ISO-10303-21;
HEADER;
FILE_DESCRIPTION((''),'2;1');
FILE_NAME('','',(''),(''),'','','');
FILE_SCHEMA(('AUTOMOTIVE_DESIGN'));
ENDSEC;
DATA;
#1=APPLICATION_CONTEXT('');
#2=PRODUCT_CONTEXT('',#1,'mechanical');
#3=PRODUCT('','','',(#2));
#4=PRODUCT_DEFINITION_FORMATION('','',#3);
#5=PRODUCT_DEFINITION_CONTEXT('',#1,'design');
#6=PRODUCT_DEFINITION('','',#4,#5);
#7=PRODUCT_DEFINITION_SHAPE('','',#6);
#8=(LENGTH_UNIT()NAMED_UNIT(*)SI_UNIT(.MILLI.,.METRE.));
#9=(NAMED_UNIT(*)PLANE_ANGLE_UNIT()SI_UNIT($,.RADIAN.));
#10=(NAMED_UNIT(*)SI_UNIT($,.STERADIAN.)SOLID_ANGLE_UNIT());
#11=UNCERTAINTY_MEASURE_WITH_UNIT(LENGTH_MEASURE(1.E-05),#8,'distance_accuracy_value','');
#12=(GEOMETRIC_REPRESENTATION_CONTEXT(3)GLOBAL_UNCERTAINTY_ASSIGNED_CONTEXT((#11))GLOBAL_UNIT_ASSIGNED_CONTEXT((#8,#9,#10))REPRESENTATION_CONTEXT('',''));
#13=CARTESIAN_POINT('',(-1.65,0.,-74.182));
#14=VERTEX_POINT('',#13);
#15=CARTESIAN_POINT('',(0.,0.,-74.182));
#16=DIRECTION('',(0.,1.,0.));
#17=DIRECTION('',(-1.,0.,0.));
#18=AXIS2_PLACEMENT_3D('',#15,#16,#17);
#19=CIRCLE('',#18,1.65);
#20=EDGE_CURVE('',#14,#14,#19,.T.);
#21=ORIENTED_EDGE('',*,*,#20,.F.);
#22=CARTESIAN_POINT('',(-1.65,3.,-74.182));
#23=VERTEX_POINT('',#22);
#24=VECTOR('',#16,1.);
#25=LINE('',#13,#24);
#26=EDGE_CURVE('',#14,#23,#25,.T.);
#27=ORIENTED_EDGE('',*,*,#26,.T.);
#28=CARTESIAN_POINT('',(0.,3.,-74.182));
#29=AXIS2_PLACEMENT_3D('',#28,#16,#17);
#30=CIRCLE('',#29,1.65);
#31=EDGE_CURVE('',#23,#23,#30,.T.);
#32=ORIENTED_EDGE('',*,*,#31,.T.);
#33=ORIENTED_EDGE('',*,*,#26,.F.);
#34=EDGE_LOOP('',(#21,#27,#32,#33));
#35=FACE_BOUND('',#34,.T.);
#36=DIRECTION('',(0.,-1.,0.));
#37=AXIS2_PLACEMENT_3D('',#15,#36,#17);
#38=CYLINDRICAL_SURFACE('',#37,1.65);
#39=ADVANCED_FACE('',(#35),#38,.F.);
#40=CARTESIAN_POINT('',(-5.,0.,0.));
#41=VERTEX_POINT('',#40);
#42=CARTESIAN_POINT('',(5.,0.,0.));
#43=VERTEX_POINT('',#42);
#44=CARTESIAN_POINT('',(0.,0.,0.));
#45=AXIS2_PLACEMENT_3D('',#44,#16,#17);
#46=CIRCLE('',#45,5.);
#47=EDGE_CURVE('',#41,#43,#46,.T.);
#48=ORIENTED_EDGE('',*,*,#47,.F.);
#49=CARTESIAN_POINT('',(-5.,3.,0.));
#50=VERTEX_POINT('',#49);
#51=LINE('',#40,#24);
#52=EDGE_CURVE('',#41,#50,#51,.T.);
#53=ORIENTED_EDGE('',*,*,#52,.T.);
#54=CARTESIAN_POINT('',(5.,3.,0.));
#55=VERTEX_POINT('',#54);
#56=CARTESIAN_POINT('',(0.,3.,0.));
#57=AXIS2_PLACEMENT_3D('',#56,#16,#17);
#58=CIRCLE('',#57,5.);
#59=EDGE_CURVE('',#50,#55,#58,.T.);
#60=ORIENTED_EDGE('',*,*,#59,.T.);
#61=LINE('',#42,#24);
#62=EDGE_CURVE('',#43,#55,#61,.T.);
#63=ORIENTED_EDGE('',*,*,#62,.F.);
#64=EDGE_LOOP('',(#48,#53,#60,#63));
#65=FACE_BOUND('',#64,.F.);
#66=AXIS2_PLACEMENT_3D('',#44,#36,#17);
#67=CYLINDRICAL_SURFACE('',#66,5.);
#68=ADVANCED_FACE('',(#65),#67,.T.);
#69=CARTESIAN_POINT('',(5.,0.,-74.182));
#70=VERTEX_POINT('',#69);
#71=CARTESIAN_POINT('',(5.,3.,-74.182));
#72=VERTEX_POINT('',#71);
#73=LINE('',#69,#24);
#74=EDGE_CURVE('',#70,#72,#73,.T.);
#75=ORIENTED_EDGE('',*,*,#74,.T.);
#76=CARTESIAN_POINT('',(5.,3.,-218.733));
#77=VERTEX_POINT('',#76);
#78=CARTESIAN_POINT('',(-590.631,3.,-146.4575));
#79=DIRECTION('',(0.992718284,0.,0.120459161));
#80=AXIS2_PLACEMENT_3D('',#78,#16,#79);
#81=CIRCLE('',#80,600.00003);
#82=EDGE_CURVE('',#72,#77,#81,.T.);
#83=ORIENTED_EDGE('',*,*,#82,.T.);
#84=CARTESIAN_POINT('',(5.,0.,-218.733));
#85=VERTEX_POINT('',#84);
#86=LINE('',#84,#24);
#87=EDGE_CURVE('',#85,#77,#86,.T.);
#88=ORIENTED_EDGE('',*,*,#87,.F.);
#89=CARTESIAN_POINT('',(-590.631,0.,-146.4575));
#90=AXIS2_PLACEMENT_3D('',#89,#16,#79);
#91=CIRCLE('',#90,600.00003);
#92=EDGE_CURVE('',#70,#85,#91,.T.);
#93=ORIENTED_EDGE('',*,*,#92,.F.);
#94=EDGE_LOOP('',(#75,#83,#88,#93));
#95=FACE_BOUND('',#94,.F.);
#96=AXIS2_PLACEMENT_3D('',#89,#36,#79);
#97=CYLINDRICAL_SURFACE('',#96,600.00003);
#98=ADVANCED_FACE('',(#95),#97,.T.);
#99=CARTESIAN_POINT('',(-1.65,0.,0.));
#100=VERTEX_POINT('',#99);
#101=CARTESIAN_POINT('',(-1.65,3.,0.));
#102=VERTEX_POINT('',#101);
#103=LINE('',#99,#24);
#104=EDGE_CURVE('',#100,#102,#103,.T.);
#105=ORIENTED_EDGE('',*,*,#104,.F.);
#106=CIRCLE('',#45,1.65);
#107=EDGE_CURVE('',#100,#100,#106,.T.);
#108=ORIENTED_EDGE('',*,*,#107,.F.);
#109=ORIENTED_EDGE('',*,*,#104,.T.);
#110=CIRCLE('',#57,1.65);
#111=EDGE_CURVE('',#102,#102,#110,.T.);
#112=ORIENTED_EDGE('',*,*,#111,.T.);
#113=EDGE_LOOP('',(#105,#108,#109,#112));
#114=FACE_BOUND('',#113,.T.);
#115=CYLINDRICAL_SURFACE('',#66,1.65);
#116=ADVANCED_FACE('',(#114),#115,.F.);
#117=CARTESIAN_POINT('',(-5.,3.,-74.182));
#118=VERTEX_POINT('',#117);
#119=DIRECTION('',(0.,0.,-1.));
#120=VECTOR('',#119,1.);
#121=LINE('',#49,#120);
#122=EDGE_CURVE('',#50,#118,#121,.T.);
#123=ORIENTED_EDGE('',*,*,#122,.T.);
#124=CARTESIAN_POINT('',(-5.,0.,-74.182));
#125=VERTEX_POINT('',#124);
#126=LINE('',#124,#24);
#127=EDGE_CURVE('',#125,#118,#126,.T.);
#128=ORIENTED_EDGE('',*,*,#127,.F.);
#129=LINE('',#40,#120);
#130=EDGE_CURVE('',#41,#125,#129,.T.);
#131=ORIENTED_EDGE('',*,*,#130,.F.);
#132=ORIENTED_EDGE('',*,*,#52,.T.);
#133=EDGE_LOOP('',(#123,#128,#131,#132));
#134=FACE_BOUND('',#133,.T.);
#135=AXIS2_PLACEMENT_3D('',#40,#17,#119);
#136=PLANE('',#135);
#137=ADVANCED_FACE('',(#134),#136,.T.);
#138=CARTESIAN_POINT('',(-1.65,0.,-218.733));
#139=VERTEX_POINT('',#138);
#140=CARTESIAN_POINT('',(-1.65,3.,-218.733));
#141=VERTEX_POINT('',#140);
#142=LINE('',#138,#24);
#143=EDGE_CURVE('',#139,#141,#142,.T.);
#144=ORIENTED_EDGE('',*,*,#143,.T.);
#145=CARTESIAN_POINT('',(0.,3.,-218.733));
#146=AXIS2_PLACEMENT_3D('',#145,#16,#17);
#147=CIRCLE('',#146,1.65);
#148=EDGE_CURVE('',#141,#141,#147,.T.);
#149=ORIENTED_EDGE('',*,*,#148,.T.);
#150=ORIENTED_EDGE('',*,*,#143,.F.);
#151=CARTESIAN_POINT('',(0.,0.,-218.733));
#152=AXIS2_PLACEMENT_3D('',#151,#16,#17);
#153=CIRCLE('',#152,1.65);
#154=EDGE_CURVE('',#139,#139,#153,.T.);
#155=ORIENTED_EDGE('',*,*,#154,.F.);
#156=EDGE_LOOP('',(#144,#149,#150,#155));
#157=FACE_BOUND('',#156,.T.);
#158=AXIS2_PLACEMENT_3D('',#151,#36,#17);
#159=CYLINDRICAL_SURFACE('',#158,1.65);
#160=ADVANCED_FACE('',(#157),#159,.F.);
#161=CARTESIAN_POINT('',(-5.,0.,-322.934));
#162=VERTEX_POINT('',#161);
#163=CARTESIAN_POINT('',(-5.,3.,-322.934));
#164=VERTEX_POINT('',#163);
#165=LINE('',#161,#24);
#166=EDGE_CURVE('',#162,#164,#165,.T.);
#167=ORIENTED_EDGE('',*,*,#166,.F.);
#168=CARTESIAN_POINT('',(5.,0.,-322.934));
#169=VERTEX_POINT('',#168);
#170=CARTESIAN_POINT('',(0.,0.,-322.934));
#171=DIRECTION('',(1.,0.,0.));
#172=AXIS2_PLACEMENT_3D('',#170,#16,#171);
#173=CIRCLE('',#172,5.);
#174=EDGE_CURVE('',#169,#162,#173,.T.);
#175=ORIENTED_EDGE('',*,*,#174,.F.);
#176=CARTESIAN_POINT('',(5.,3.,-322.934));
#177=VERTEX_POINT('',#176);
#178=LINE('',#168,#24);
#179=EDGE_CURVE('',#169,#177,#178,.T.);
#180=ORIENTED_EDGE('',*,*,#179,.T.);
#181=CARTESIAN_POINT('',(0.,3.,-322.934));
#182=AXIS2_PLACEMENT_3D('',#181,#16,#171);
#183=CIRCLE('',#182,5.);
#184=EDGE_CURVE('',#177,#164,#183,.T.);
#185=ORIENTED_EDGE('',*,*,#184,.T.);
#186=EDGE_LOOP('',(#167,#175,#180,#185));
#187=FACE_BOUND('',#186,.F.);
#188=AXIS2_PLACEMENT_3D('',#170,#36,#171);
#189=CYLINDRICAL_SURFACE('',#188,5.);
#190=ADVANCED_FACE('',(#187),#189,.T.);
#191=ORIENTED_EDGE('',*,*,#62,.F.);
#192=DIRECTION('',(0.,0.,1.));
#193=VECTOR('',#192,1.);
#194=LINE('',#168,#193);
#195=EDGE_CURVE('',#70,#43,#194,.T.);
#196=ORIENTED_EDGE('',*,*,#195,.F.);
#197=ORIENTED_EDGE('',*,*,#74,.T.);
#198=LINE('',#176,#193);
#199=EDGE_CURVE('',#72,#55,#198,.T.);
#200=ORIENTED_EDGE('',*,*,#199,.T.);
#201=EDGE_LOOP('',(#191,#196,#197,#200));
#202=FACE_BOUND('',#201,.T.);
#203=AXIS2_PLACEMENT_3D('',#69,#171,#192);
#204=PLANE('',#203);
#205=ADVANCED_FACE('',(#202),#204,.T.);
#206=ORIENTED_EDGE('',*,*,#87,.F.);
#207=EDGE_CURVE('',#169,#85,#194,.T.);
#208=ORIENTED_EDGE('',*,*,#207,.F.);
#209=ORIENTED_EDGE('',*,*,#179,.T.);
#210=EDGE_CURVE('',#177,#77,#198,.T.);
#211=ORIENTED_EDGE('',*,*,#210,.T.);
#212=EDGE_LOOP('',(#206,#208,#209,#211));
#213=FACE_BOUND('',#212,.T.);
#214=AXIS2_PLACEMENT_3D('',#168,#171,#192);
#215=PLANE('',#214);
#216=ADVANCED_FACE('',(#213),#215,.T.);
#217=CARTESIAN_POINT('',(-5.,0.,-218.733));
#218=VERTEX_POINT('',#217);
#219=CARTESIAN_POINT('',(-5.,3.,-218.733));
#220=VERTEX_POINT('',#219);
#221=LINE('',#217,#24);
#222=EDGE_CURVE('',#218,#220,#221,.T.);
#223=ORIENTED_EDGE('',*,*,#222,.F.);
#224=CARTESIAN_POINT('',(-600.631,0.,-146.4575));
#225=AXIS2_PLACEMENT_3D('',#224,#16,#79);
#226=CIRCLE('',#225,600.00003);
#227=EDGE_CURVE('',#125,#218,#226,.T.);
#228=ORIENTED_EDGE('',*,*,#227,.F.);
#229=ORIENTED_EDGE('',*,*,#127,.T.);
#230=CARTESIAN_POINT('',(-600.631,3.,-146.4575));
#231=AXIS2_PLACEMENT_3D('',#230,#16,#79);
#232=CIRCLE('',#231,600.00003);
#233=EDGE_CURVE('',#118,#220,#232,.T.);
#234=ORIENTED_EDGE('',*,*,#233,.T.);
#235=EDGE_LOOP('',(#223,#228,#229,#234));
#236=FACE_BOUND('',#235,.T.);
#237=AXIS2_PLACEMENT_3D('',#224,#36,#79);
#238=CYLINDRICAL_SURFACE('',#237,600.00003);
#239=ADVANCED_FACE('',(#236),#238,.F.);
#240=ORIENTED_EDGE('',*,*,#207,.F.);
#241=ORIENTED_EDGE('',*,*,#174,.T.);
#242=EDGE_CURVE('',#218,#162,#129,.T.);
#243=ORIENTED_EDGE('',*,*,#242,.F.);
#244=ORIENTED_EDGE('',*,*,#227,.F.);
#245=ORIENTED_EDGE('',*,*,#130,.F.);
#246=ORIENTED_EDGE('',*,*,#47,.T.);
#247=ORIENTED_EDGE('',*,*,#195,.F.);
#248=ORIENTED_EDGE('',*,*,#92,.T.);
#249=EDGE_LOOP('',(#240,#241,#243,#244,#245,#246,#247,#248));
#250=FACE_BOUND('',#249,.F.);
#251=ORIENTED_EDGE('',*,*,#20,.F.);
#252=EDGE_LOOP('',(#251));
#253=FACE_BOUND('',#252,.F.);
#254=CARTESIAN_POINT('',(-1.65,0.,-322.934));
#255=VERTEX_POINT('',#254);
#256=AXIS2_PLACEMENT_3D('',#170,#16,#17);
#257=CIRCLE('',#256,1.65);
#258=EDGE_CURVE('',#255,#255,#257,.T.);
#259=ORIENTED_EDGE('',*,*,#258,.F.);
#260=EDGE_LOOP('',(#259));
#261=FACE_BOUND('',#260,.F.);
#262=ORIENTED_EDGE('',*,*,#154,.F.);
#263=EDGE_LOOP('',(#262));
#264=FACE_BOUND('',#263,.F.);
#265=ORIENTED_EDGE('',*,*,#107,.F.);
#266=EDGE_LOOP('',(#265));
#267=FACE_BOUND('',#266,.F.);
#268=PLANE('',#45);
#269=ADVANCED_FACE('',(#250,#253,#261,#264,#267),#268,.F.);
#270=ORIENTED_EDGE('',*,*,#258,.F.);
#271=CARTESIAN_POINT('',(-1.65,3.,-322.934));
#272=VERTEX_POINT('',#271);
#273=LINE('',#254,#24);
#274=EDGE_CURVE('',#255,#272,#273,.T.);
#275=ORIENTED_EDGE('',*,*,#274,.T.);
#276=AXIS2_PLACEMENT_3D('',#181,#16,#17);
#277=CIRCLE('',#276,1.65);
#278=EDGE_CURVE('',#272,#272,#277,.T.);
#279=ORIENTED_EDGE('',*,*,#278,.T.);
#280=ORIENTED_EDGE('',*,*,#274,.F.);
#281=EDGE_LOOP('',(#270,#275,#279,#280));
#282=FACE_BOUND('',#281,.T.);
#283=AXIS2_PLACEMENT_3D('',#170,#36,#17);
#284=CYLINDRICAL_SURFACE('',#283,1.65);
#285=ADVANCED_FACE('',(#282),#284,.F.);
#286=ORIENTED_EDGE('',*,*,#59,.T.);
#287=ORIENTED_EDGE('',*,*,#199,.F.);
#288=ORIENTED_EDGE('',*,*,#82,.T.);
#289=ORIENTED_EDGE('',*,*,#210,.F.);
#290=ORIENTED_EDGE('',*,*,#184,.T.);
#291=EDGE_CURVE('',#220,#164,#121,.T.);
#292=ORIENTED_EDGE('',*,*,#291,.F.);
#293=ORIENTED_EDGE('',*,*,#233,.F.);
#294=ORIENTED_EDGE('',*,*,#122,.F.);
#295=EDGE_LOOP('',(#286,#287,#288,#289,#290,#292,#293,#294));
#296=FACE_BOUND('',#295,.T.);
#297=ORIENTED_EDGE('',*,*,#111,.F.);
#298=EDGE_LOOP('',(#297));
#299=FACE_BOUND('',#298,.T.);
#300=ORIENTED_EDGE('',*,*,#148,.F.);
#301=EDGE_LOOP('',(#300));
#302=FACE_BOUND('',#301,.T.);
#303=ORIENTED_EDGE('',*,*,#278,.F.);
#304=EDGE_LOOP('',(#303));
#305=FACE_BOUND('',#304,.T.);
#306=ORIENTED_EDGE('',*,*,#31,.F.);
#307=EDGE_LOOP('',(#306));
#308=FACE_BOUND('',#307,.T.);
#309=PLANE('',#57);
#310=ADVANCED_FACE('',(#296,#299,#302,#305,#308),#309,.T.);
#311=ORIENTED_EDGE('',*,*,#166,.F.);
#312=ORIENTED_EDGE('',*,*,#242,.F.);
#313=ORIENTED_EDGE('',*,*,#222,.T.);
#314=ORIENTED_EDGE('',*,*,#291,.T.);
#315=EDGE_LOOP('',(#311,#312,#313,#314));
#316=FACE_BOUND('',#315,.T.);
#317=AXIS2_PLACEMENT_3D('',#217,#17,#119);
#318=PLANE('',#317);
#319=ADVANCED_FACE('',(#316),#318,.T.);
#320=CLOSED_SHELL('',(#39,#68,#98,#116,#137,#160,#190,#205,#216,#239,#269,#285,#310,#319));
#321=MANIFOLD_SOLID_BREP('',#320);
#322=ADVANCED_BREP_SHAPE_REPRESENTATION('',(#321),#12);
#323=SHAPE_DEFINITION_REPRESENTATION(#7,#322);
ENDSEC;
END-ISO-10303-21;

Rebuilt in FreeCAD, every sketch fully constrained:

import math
import FreeCAD as App
import Part
import Sketcher
from FreeCAD import Vector

doc = App.newDocument("Part")
params = doc.addObject("Spreadsheet::Sheet", "Params")
for row, (alias, value) in enumerate([
    ("sketch1_radius", "5 mm"),
    ("sketch1_radius2", "600 mm"),
    ("sketch1_diameter", "3.3 mm"),
    ("pad1_length", "3 mm"),
], start=1):
    params.set(f"A{row}", alias)
    params.set(f"B{row}", "=" + value)
    params.setAlias(f"B{row}", alias)

body = doc.addObject("PartDesign::Body", "Body")

# Sketch on XZ plane
sketch1 = body.newObject("Sketcher::SketchObject", "Sketch")
sketch1.AttachmentSupport = (doc.getObject("XZ_Plane"), [""])
sketch1.MapMode = "FlatFace"
sketch1.addGeometry(Part.LineSegment(Vector(-5, -74.182, 0), Vector(-5, 0, 0)), False)
sketch1.addGeometry(Part.ArcOfCircle(Part.Circle(Vector(0, 0, 0), Vector(0, 0, 1), 5), math.radians(0), math.radians(180)), False)
sketch1.addGeometry(Part.LineSegment(Vector(5, 0, 0), Vector(5, -74.182, 0)), False)
sketch1.addGeometry(Part.ArcOfCircle(Part.Circle(Vector(-590.631, -146.4575, 0), Vector(0, 0, 1), 600.00003), math.radians(-6.918603), math.radians(6.918603)), False)
sketch1.addGeometry(Part.LineSegment(Vector(5, -218.733, 0), Vector(5, -322.934, 0)), False)
sketch1.addGeometry(Part.ArcOfCircle(Part.Circle(Vector(0, -322.934, 0), Vector(0, 0, 1), 5), math.radians(180), math.radians(360)), False)
sketch1.addGeometry(Part.LineSegment(Vector(-5, -322.934, 0), Vector(-5, -218.733, 0)), False)
sketch1.addGeometry(Part.ArcOfCircle(Part.Circle(Vector(-600.631, -146.4575, 0), Vector(0, 0, 1), 600.00003), math.radians(-6.918603), math.radians(6.918603)), False)
sketch1.addGeometry(Part.Circle(Vector(0, -322.934, 0), Vector(0, 0, 1), 1.65), False)
sketch1.addGeometry(Part.Circle(Vector(0, -218.733, 0), Vector(0, 0, 1), 1.65), False)
sketch1.addGeometry(Part.Circle(Vector(0, -74.182, 0), Vector(0, 0, 1), 1.65), False)
sketch1.addGeometry(Part.Circle(Vector(0, 0, 0), Vector(0, 0, 1), 1.65), False)
sketch1.addConstraint(Sketcher.Constraint("Tangent", 0, 2, 1, 2))
sketch1.addConstraint(Sketcher.Constraint("Tangent", 1, 1, 2, 1))
sketch1.addConstraint(Sketcher.Constraint("Coincident", 2, 2, 3, 2))
sketch1.addConstraint(Sketcher.Constraint("Coincident", 3, 1, 4, 1))
sketch1.addConstraint(Sketcher.Constraint("Tangent", 4, 2, 5, 2))
sketch1.addConstraint(Sketcher.Constraint("Tangent", 5, 1, 6, 1))
sketch1.addConstraint(Sketcher.Constraint("Coincident", 6, 2, 7, 1))
sketch1.addConstraint(Sketcher.Constraint("Coincident", 7, 2, 0, 1))
sketch1.addConstraint(Sketcher.Constraint("Vertical", 0))
sketch1.addConstraint(Sketcher.Constraint("Vertical", 2))
sketch1.addConstraint(Sketcher.Constraint("Vertical", 4))
sketch1.addConstraint(Sketcher.Constraint("Vertical", 6))
sketch1.addConstraint(Sketcher.Constraint("Coincident", 1, 3, -1, 1))
sketch1.addConstraint(Sketcher.Constraint("Coincident", 11, 3, -1, 1))
sketch1.addConstraint(Sketcher.Constraint("Coincident", 8, 3, 5, 3))
sketch1.addConstraint(Sketcher.Constraint("Equal", 1, 5))
sketch1.addConstraint(Sketcher.Constraint("Equal", 3, 7))
sketch1.addConstraint(Sketcher.Constraint("Equal", 8, 9))
sketch1.addConstraint(Sketcher.Constraint("Equal", 9, 10))
sketch1.addConstraint(Sketcher.Constraint("Equal", 10, 11))
sketch1.addConstraint(Sketcher.Constraint("Symmetric", 3, 1, 6, 2, -2))
sketch1.addConstraint(Sketcher.Constraint("PointOnObject", 9, 3, -2))
sketch1.addConstraint(Sketcher.Constraint("PointOnObject", 10, 3, -2))
sketch1.addConstraint(Sketcher.Constraint("Horizontal", 3, 3, 7, 3))
sketch1.addConstraint(Sketcher.Constraint("Horizontal", 10, 3, 2, 2))
sketch1.addConstraint(Sketcher.Constraint("Radius", 1, 5.0))
sketch1.addConstraint(Sketcher.Constraint("Radius", 3, 600.0))
sketch1.addConstraint(Sketcher.Constraint("Diameter", 8, 3.3))
sketch1.addConstraint(Sketcher.Constraint("DistanceY", 0, 1, 0, 2, 74.182))
sketch1.addConstraint(Sketcher.Constraint("DistanceY", 5, 3, -1, 1, 322.934))
sketch1.addConstraint(Sketcher.Constraint("DistanceY", 9, 3, -1, 1, 218.733))
sketch1.addConstraint(Sketcher.Constraint("DistanceY", 6, 2, -1, 1, 218.733))
sketch1.setExpression("Constraints[25]", "Params.sketch1_radius")
sketch1.setExpression("Constraints[26]", "Params.sketch1_radius2")
sketch1.setExpression("Constraints[27]", "Params.sketch1_diameter")
pad1 = body.newObject("PartDesign::Pad", "Pad")
pad1.Profile = sketch1
pad1.setExpression("Length", "Params.pad1_length")
pad1.Reversed = True

doc.recompute()
